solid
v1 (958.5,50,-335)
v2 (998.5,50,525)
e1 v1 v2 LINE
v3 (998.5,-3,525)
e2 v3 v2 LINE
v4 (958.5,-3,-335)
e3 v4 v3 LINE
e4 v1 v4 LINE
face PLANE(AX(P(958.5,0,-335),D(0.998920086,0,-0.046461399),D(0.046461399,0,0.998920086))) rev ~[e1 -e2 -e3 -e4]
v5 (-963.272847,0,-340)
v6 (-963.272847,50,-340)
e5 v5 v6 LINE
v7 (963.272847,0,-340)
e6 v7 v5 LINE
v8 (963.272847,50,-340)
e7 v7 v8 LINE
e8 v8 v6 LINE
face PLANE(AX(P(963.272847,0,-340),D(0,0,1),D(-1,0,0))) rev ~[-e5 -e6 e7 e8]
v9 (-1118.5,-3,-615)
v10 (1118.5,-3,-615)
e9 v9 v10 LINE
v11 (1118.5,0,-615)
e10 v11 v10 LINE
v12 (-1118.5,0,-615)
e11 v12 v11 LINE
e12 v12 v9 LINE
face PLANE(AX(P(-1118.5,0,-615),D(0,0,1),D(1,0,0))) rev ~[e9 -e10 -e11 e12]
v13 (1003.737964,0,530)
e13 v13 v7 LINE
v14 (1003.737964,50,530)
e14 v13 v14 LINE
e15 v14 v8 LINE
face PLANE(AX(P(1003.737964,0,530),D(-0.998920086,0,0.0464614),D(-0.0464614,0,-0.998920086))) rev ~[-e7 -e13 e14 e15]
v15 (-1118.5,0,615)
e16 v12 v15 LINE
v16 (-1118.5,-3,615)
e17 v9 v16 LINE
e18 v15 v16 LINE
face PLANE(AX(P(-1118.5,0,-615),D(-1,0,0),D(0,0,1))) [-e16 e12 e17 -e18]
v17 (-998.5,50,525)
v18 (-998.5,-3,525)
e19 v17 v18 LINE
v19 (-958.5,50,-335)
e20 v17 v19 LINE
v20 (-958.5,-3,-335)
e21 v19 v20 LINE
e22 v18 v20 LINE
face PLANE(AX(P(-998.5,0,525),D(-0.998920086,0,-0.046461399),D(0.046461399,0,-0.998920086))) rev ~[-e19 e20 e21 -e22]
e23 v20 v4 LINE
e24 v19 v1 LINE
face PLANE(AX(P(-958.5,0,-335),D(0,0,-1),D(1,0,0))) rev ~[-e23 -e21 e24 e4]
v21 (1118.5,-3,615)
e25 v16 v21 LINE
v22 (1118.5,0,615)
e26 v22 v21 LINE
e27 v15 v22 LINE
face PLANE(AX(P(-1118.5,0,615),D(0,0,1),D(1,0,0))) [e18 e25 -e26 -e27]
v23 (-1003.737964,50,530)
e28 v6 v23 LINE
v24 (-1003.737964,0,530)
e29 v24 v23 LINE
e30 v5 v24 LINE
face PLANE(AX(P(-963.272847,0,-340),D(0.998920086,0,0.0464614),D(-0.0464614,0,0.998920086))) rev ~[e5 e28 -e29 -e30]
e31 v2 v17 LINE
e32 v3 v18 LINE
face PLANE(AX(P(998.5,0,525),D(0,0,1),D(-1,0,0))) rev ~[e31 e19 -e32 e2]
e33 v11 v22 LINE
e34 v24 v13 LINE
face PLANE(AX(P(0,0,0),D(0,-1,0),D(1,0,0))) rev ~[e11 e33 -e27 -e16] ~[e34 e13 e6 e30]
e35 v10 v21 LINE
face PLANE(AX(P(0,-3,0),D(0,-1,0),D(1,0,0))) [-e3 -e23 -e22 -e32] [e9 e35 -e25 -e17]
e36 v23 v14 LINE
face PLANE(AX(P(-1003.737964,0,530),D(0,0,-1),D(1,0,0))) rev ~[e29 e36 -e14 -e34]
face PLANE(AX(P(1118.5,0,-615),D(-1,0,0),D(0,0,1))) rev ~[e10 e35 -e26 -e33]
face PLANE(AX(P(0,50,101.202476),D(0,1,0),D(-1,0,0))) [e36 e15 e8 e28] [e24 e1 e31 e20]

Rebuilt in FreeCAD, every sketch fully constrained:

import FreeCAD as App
import Part
import Sketcher
Q = App.Units.Quantity

doc = App.newDocument("Part")
body = doc.addObject("PartDesign::Body", "Body")

sketch1 = body.newObject("Sketcher::SketchObject", "Sketch")
sketch1.AttachmentSupport = (doc.getObject("XZ_Plane"), [""])
sketch1.MapMode = "FlatFace"
sketch1.addGeometry([
    Part.LineSegment(App.Vector(-1118, 615, 0), App.Vector(-1118, -615, 0)),
    Part.LineSegment(App.Vector(-1118, -615, 0), App.Vector(1118, -615, 0)),
    Part.LineSegment(App.Vector(1118, -615, 0), App.Vector(1118, 615, 0)),
    Part.LineSegment(App.Vector(1118, 615, 0), App.Vector(-1118, 615, 0)),
], False)
sketch1.addConstraint([
    Sketcher.Constraint("Coincident", 0, 2, 1, 1),
    Sketcher.Constraint("Coincident", 1, 2, 2, 1),
    Sketcher.Constraint("Coincident", 2, 2, 3, 1),
    Sketcher.Constraint("Coincident", 3, 2, 0, 1),
    Sketcher.Constraint("Vertical", 0),
    Sketcher.Constraint("Horizontal", 1),
    Sketcher.Constraint("Vertical", 2),
    Sketcher.Constraint("Horizontal", 3),
    Sketcher.Constraint("Symmetric", 0, 2, 2, 2, -1, 1),
    Sketcher.Constraint("DistanceX", 1, 1, 1, 2, Q("2237 mm")),
    Sketcher.Constraint("DistanceY", 0, 2, 0, 1, Q("1230 mm")),
])
pad1 = body.newObject("PartDesign::Pad", "Pad")
pad1.Profile = sketch1
pad1.Length = 3

sketch2 = body.newObject("Sketcher::SketchObject", "Sketch001")
sketch2.AttachmentSupport = (doc.getObject("XZ_Plane"), [""])
sketch2.MapMode = "FlatFace"
sketch2.AttachmentOffset = App.Placement(App.Vector(0, 0, 3), App.Rotation())
sketch2.addGeometry([
    Part.LineSegment(App.Vector(958, -335, 0), App.Vector(998, 525, 0)),
    Part.LineSegment(App.Vector(998, 525, 0), App.Vector(-998, 525, 0)),
    Part.LineSegment(App.Vector(-998, 525, 0), App.Vector(-958, -335, 0)),
    Part.LineSegment(App.Vector(-958, -335, 0), App.Vector(958, -335, 0)),
], False)
sketch2.addConstraint([
    Sketcher.Constraint("Coincident", 0, 2, 1, 1),
    Sketcher.Constraint("Coincident", 1, 2, 2, 1),
    Sketcher.Constraint("Coincident", 2, 2, 3, 1),
    Sketcher.Constraint("Coincident", 3, 2, 0, 1),
    Sketcher.Constraint("Horizontal", 1),
    Sketcher.Constraint("Horizontal", 3),
    Sketcher.Constraint("Equal", 0, 2),
    Sketcher.Constraint("DistanceX", 1, 2, 1, 1, Q("1997 mm")),
    Sketcher.Constraint("DistanceX", 3, 1, 3, 2, Q("1917 mm")),
    Sketcher.Constraint("DistanceY", -1, 1, 0, 2, Q("525 mm")),
    Sketcher.Constraint("DistanceY", 2, 2, -1, 1, Q("335 mm")),
    Sketcher.Constraint("DistanceX", -1, 1, 0, 2, Q("998.5 mm")),
])
pocket1 = body.newObject("PartDesign::Pocket", "Pocket")
pocket1.Profile = sketch2
pocket1.Type = "ThroughAll"

sketch3 = body.newObject("Sketcher::SketchObject", "Sketch002")
sketch3.AttachmentSupport = (doc.getObject("XZ_Plane"), [""])
sketch3.MapMode = "FlatFace"
sketch3.addGeometry([
    Part.LineSegment(App.Vector(-1004, 530, 0), App.Vector(1004, 530, 0)),
    Part.LineSegment(App.Vector(1004, 530, 0), App.Vector(963, -340, 0)),
    Part.LineSegment(App.Vector(963, -340, 0), App.Vector(-963, -340, 0)),
    Part.LineSegment(App.Vector(-963, -340, 0), App.Vector(-1004, 530, 0)),
    Part.LineSegment(App.Vector(958, -335, 0), App.Vector(998, 525, 0)),
    Part.LineSegment(App.Vector(998, 525, 0), App.Vector(-998, 525, 0)),
    Part.LineSegment(App.Vector(-998, 525, 0), App.Vector(-958, -335, 0)),
    Part.LineSegment(App.Vector(-958, -335, 0), App.Vector(958, -335, 0)),
], False)
sketch3.addConstraint([
    Sketcher.Constraint("Coincident", 0, 2, 1, 1),
    Sketcher.Constraint("Coincident", 1, 2, 2, 1),
    Sketcher.Constraint("Coincident", 2, 2, 3, 1),
    Sketcher.Constraint("Coincident", 3, 2, 0, 1),
    Sketcher.Constraint("Coincident", 4, 2, 5, 1),
    Sketcher.Constraint("Coincident", 5, 2, 6, 1),
    Sketcher.Constraint("Coincident", 6, 2, 7, 1),
    Sketcher.Constraint("Coincident", 7, 2, 4, 1),
    Sketcher.Constraint("Horizontal", 0),
    Sketcher.Constraint("Horizontal", 2),
    Sketcher.Constraint("Horizontal", 5),
    Sketcher.Constraint("Horizontal", 7),
    Sketcher.Constraint("Parallel", 1, 4),
    Sketcher.Constraint("Parallel", 3, 6),
    Sketcher.Constraint("Equal", 1, 3),
    Sketcher.Constraint("DistanceX", 5, 2, 5, 1, Q("1997 mm")),
    Sketcher.Constraint("DistanceX", 7, 1, 7, 2, Q("1917 mm")),
    Sketcher.Constraint("DistanceY", -1, 1, 0, 2, Q("530 mm")),
    Sketcher.Constraint("DistanceY", 1, 2, -1, 1, Q("340 mm")),
    Sketcher.Constraint("DistanceY", -1, 1, 4, 2, Q("525 mm")),
    Sketcher.Constraint("DistanceY", 6, 2, -1, 1, Q("335 mm")),
    Sketcher.Constraint("DistanceX", -1, 1, 4, 2, Q("998.5 mm")),
    Sketcher.Constraint("DistanceX", 0, 1, 0, 2, Q("2007.475928 mm")),
    Sketcher.Constraint("DistanceX", -1, 1, 0, 2, Q("1003.737964 mm")),
])
pad2 = body.newObject("PartDesign::Pad", "Pad001")
pad2.Profile = sketch3
pad2.Length = 50
pad2.Reversed = True

doc.recompute()
